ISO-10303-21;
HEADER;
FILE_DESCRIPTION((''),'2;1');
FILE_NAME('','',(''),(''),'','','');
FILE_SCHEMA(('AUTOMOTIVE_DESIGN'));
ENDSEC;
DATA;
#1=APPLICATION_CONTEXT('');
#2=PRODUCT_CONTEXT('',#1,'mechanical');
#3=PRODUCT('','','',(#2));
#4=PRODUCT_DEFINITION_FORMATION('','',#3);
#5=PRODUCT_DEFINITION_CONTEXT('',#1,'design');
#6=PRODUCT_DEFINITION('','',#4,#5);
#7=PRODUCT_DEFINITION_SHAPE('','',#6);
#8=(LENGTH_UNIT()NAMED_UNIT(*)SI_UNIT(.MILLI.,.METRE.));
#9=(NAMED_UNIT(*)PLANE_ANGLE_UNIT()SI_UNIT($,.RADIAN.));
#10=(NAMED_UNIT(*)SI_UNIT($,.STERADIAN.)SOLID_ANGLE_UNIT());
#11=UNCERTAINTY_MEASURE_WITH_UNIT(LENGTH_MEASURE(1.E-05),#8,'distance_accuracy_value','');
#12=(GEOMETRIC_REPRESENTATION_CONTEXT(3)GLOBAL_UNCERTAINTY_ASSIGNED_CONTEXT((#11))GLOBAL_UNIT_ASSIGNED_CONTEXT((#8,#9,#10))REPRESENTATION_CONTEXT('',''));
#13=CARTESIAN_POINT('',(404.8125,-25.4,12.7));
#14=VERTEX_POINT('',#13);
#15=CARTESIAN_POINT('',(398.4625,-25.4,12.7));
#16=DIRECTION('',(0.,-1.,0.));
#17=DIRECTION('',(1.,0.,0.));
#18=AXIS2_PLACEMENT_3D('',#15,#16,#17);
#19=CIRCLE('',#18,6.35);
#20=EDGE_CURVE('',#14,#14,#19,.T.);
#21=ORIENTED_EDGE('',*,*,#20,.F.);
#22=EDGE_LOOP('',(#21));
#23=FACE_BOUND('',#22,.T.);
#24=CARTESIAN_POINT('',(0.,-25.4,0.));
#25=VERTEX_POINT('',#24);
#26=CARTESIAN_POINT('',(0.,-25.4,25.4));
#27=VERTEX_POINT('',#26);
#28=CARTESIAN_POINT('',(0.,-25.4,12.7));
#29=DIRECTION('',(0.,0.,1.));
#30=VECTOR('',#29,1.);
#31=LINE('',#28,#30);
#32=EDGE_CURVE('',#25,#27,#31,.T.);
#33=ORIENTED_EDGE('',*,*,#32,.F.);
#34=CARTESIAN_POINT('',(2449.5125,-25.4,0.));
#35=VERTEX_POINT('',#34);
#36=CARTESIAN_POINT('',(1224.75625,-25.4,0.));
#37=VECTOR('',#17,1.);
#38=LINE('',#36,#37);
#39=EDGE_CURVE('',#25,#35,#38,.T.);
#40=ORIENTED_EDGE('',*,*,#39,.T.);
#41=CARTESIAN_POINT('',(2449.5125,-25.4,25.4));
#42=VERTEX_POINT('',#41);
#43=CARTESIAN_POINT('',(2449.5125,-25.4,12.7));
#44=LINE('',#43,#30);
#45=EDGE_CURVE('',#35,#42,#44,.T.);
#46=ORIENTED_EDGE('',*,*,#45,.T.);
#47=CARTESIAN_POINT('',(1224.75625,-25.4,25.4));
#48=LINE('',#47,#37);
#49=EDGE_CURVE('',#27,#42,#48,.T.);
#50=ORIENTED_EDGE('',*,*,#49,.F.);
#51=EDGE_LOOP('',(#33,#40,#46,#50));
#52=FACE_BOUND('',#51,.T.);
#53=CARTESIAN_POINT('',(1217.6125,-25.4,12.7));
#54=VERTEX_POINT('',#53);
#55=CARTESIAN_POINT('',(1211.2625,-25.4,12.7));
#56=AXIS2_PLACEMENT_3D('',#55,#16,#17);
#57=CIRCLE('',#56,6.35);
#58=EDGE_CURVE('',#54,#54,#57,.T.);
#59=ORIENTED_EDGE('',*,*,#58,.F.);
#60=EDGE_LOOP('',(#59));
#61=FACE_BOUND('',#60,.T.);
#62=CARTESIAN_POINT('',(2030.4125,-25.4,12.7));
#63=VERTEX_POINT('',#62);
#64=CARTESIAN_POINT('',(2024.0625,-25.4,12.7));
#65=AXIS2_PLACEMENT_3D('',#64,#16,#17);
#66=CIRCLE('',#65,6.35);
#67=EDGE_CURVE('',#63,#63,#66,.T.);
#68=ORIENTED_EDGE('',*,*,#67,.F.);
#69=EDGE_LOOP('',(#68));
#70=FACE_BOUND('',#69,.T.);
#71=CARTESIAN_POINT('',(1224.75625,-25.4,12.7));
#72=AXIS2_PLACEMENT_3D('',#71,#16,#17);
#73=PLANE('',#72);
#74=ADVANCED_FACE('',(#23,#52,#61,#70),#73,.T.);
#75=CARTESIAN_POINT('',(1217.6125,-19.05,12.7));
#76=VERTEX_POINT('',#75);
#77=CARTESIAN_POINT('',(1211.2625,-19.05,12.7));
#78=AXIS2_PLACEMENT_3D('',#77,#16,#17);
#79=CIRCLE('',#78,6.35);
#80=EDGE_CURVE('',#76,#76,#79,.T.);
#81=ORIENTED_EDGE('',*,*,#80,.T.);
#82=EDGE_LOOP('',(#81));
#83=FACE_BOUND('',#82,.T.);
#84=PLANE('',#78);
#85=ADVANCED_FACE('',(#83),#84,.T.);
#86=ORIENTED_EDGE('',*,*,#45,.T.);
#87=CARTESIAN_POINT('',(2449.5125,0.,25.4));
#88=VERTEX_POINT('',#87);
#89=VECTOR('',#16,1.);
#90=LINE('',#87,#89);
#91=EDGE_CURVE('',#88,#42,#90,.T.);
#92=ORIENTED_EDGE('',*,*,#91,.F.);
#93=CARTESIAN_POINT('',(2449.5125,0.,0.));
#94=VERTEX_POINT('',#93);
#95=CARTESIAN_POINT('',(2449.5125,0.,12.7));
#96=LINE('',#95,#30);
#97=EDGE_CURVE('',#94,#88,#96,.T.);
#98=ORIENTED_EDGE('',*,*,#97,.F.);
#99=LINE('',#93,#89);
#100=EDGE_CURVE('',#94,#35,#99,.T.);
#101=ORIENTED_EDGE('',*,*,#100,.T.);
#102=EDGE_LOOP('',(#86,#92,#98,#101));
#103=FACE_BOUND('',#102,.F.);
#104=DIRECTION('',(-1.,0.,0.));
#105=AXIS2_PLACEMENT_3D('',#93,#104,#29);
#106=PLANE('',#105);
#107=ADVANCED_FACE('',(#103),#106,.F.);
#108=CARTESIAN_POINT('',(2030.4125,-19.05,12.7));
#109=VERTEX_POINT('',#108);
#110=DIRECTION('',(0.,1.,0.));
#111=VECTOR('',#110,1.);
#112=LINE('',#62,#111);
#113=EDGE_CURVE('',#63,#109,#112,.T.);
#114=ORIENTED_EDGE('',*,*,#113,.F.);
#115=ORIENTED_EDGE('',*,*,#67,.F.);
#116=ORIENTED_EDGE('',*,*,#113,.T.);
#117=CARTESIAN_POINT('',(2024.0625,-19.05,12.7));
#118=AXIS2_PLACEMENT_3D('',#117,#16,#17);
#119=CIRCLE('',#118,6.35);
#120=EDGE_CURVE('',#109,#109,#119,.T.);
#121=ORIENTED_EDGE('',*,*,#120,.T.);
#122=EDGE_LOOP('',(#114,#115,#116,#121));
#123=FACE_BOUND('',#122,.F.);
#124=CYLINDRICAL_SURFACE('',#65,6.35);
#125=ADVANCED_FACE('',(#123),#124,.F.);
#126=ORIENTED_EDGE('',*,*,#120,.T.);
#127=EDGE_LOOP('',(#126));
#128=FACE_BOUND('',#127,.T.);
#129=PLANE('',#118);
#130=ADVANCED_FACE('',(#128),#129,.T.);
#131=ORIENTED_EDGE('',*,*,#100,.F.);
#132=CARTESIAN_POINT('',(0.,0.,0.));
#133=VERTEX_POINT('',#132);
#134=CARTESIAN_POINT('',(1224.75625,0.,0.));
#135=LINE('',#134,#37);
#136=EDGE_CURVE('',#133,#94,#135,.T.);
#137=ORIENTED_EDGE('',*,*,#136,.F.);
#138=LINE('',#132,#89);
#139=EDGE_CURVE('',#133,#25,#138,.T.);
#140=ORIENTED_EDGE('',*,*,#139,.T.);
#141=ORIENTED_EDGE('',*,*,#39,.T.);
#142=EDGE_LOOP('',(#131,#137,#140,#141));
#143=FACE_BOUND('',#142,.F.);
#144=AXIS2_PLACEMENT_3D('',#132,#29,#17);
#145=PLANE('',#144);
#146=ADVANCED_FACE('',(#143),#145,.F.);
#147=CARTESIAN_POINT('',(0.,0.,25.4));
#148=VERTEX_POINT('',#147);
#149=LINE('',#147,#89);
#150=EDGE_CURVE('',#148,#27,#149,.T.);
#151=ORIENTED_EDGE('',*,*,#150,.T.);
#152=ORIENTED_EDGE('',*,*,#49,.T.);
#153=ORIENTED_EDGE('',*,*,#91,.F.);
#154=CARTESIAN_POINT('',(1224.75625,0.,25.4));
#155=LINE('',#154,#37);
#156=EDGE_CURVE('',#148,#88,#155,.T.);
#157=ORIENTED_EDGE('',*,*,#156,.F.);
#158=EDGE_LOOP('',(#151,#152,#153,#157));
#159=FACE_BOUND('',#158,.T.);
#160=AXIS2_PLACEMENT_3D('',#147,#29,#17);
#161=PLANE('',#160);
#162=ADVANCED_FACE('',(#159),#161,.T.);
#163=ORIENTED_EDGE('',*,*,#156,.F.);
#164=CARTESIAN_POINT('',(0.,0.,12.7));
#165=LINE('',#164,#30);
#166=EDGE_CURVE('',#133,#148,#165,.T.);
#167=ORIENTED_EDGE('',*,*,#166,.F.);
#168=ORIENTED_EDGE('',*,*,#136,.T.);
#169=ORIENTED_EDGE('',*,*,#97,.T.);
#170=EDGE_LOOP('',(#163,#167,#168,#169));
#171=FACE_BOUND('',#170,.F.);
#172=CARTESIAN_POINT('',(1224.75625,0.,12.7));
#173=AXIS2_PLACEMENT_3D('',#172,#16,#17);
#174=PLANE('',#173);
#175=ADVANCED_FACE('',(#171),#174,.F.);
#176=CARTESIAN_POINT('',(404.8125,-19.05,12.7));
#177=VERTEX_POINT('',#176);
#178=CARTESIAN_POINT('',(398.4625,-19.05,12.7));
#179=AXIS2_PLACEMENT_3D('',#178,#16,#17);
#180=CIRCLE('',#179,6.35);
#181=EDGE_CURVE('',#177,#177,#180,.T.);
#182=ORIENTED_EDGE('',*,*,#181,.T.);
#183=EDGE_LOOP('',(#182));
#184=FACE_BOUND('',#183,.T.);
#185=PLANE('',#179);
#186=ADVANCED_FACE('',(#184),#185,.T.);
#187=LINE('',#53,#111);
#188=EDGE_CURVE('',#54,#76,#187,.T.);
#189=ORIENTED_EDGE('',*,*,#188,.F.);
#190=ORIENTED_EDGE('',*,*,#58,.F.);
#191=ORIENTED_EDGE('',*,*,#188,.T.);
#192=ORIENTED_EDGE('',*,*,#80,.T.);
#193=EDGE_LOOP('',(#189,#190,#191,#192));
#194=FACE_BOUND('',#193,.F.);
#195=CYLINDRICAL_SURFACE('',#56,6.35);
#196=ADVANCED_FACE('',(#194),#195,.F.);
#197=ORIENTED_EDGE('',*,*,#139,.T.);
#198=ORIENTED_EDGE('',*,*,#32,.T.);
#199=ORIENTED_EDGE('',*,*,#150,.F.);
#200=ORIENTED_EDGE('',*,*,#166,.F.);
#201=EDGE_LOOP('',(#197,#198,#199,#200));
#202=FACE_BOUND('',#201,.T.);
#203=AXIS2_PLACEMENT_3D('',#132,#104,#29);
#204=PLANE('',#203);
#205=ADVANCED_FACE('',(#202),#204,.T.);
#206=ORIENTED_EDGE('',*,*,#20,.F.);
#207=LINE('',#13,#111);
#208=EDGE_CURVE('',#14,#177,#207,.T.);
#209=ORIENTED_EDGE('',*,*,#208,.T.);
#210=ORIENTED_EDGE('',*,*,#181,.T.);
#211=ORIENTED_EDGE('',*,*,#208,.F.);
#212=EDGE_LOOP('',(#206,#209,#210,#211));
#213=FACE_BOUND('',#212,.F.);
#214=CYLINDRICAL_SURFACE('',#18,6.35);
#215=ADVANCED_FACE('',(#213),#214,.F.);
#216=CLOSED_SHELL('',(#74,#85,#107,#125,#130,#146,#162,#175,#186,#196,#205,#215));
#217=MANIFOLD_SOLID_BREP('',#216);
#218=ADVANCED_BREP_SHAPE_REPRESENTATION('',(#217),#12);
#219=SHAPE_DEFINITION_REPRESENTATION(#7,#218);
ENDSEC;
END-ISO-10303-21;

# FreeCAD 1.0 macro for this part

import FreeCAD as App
import Part
import Sketcher
from FreeCAD import Vector
Q = App.Units.Quantity

doc = App.newDocument("Part")
body = doc.addObject("PartDesign::Body", "Body")

# Sketch on XZ plane
sketch1 = body.newObject("Sketcher::SketchObject", "Sketch")
sketch1.AttachmentSupport = (doc.getObject("XZ_Plane"), [""])
sketch1.MapMode = "FlatFace"
sketch1.addGeometry(Part.LineSegment(Vector(0, 25.4, 0), Vector(0, 0, 0)), False)
sketch1.addGeometry(Part.LineSegment(Vector(0, 0, 0), Vector(2449.5125, 0, 0)), False)
sketch1.addGeometry(Part.LineSegment(Vector(2449.5125, 0, 0), Vector(2449.5125, 25.4, 0)), False)
sketch1.addGeometry(Part.LineSegment(Vector(2449.5125, 25.4, 0), Vector(0, 25.4, 0)), False)
sketch1.addConstraint(Sketcher.Constraint("Coincident", 0, 2, 1, 1))
sketch1.addConstraint(Sketcher.Constraint("Coincident", 1, 2, 2, 1))
sketch1.addConstraint(Sketcher.Constraint("Coincident", 2, 2, 3, 1))
sketch1.addConstraint(Sketcher.Constraint("Coincident", 3, 2, 0, 1))
sketch1.addConstraint(Sketcher.Constraint("Vertical", 0))
sketch1.addConstraint(Sketcher.Constraint("Horizontal", 1))
sketch1.addConstraint(Sketcher.Constraint("Vertical", 2))
sketch1.addConstraint(Sketcher.Constraint("Horizontal", 3))
sketch1.addConstraint(Sketcher.Constraint("Coincident", 0, 2, -1, 1))
sketch1.addConstraint(Sketcher.Constraint("DistanceY", 0, 2, 0, 1, Q("1 in")))
sketch1.addConstraint(Sketcher.Constraint("DistanceX", 1, 1, 1, 2, Q("96.4375 in")))
pad1 = body.newObject("PartDesign::Pad", "Pad")
pad1.Profile = sketch1
pad1.Length = Q("1 in")

# Sketch on XZ plane
sketch2 = body.newObject("Sketcher::SketchObject", "Sketch001")
sketch2.AttachmentSupport = (doc.getObject("XZ_Plane"), [""])
sketch2.MapMode = "FlatFace"
sketch2.AttachmentOffset = App.Placement(Vector(0, 0, 1 * 25.4), App.Rotation())
sketch2.addGeometry(Part.Circle(Vector(2024.0625, 12.7, 0), Vector(0, 0, 1), 6.35), False)
sketch2.addGeometry(Part.Circle(Vector(1211.2625, 12.7, 0), Vector(0, 0, 1), 6.35), False)
sketch2.addGeometry(Part.Circle(Vector(398.4625, 12.7, 0), Vector(0, 0, 1), 6.35), False)
sketch2.addConstraint(Sketcher.Constraint("Equal", 0, 1))
sketch2.addConstraint(Sketcher.Constraint("Equal", 1, 2))
sketch2.addConstraint(Sketcher.Constraint("Horizontal", 0, 3, 1, 3))
sketch2.addConstraint(Sketcher.Constraint("Horizontal", 1, 3, 2, 3))
sketch2.addConstraint(Sketcher.Constraint("Diameter", 0, Q("0.5 in")))
sketch2.addConstraint(Sketcher.Constraint("DistanceX", 1, 3, 0, 3, Q("32 in")))
sketch2.addConstraint(Sketcher.Constraint("DistanceX", 2, 3, 1, 3, Q("32 in")))
sketch2.addConstraint(Sketcher.Constraint("DistanceY", -1, 1, 0, 3, Q("0.5 in")))
sketch2.addConstraint(Sketcher.Constraint("DistanceX", -1, 1, 0, 3, Q("79.6875 in")))
pocket1 = body.newObject("PartDesign::Pocket", "Pocket")
pocket1.Profile = sketch2
pocket1.Length = Q("0.25 in")

doc.recompute()
